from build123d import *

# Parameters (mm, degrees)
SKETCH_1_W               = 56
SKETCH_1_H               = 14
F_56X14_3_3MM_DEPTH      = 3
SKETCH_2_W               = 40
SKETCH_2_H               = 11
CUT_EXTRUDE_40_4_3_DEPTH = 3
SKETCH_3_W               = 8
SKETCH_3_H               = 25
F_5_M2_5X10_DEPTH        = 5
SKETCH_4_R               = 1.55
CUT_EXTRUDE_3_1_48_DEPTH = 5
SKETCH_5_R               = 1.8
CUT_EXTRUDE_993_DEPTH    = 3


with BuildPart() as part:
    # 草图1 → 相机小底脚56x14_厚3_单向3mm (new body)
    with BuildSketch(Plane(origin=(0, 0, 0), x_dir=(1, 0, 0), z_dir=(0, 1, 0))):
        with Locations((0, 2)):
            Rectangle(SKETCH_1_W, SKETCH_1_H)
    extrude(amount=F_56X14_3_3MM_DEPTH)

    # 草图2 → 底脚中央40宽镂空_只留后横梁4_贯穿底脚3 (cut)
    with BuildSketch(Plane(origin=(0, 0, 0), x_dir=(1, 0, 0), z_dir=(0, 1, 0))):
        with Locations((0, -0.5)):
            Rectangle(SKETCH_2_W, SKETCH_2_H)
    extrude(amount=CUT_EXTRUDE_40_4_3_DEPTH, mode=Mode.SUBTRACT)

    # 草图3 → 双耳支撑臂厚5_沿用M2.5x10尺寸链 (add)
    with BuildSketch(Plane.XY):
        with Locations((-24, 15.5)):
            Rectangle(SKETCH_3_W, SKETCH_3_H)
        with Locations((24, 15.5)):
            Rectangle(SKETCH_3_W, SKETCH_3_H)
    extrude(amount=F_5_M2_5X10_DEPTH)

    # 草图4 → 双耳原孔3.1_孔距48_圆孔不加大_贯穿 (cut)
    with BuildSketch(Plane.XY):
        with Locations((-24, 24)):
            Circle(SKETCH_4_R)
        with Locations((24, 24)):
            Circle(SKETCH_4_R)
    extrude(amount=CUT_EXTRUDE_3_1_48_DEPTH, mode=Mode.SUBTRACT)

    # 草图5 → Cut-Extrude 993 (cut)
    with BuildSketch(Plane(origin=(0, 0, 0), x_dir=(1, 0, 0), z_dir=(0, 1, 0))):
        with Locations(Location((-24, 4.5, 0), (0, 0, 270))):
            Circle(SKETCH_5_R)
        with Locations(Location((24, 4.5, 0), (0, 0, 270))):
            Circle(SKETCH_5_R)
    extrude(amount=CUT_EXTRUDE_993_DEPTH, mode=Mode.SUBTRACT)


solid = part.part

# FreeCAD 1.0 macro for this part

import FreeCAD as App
import Part
import Sketcher
from FreeCAD import Vector

doc = App.newDocument("Part")
body = doc.addObject("PartDesign::Body", "Body")

# Sketch on XZ plane
sketch1 = body.newObject("Sketcher::SketchObject", "Sketch")
sketch1.AttachmentSupport = (doc.getObject("XZ_Plane"), [""])
sketch1.MapMode = "FlatFace"
sketch1.addGeometry([
    Part.LineSegment(Vector(-28, -9, 0), Vector(-28, 5, 0)),
    Part.LineSegment(Vector(-28, 5, 0), Vector(28, 5, 0)),
    Part.LineSegment(Vector(28, 5, 0), Vector(28, -9, 0)),
    Part.LineSegment(Vector(28, -9, 0), Vector(-28, -9, 0)),
], False)
sketch1.addConstraint([
    Sketcher.Constraint("Coincident", 0, 2, 1, 1),
    Sketcher.Constraint("Coincident", 1, 2, 2, 1),
    Sketcher.Constraint("Coincident", 2, 2, 3, 1),
    Sketcher.Constraint("Coincident", 3, 2, 0, 1),
    Sketcher.Constraint("Vertical", 0),
    Sketcher.Constraint("Horizontal", 1),
    Sketcher.Constraint("Vertical", 2),
    Sketcher.Constraint("Horizontal", 3),
    Sketcher.Constraint("DistanceX", 1, 1, 1, 2, 56.0),
    Sketcher.Constraint("DistanceY", 0, 1, 0, 2, 14.0),
    Sketcher.Constraint("DistanceX", 0, 2, -1, 1, 28.0),
    Sketcher.Constraint("DistanceY", -1, 1, 0, 2, 5.0),
])
pad1 = body.newObject("PartDesign::Pad", "Pad")
pad1.Profile = sketch1
pad1.Length = 3
pad1.Reversed = True

# Sketch on XZ plane
sketch2 = body.newObject("Sketcher::SketchObject", "Sketch001")
sketch2.AttachmentSupport = (doc.getObject("XZ_Plane"), [""])
sketch2.MapMode = "FlatFace"
sketch2.addGeometry([
    Part.LineSegment(Vector(-20, -5, 0), Vector(-20, 6, 0)),
    Part.LineSegment(Vector(-20, 6, 0), Vector(20, 6, 0)),
    Part.LineSegment(Vector(20, 6, 0), Vector(20, -5, 0)),
    Part.LineSegment(Vector(20, -5, 0), Vector(-20, -5, 0)),
], False)
sketch2.addConstraint([
    Sketcher.Constraint("Coincident", 0, 2, 1, 1),
    Sketcher.Constraint("Coincident", 1, 2, 2, 1),
    Sketcher.Constraint("Coincident", 2, 2, 3, 1),
    Sketcher.Constraint("Coincident", 3, 2, 0, 1),
    Sketcher.Constraint("Vertical", 0),
    Sketcher.Constraint("Horizontal", 1),
    Sketcher.Constraint("Vertical", 2),
    Sketcher.Constraint("Horizontal", 3),
    Sketcher.Constraint("DistanceX", 1, 1, 1, 2, 40.0),
    Sketcher.Constraint("DistanceY", 0, 1, 0, 2, 11.0),
    Sketcher.Constraint("DistanceX", 0, 2, -1, 1, 20.0),
    Sketcher.Constraint("DistanceY", -1, 1, 0, 2, 6.0),
])
pocket1 = body.newObject("PartDesign::Pocket", "Pocket")
pocket1.Profile = sketch2
pocket1.Length = 3

# Sketch on XY plane
sketch3 = body.newObject("Sketcher::SketchObject", "Sketch002")
sketch3.AttachmentSupport = (doc.getObject("XY_Plane"), [""])
sketch3.MapMode = "FlatFace"
sketch3.addGeometry([
    Part.LineSegment(Vector(-28, 28, 0), Vector(-28, 3, 0)),  # 0
    Part.LineSegment(Vector(-28, 3, 0), Vector(-20, 3, 0)),  # 1
    Part.LineSegment(Vector(-20, 3, 0), Vector(-20, 28, 0)),  # 2
    Part.LineSegment(Vector(-20, 28, 0), Vector(-28, 28, 0)),  # 3
    Part.LineSegment(Vector(20, 28, 0), Vector(20, 3, 0)),  # 4
    Part.LineSegment(Vector(20, 3, 0), Vector(28, 3, 0)),  # 5
    Part.LineSegment(Vector(28, 3, 0), Vector(28, 28, 0)),  # 6
    Part.LineSegment(Vector(28, 28, 0), Vector(20, 28, 0)),  # 7
], False)
sketch3.addConstraint([
    Sketcher.Constraint("Coincident", 0, 2, 1, 1),
    Sketcher.Constraint("Coincident", 1, 2, 2, 1),
    Sketcher.Constraint("Coincident", 2, 2, 3, 1),
    Sketcher.Constraint("Coincident", 3, 2, 0, 1),
    Sketcher.Constraint("Coincident", 4, 2, 5, 1),
    Sketcher.Constraint("Coincident", 5, 2, 6, 1),
    Sketcher.Constraint("Coincident", 6, 2, 7, 1),
    Sketcher.Constraint("Coincident", 7, 2, 4, 1),
    Sketcher.Constraint("Vertical", 0),
    Sketcher.Constraint("Horizontal", 1),
    Sketcher.Constraint("Vertical", 2),
    Sketcher.Constraint("Horizontal", 3),
    Sketcher.Constraint("Vertical", 4),
    Sketcher.Constraint("Horizontal", 5),
    Sketcher.Constraint("Vertical", 6),
    Sketcher.Constraint("Horizontal", 7),
    Sketcher.Constraint("Symmetric", 1, 2, 4, 2, -2),
    Sketcher.Constraint("Symmetric", 3, 2, 6, 2, -2),
    Sketcher.Constraint("DistanceX", 1, 1, 1, 2, 8.0),
    Sketcher.Constraint("DistanceY", 0, 2, 0, 1, 25.0),
    Sketcher.Constraint("DistanceX", 0, 2, -1, 1, 28.0),
    Sketcher.Constraint("DistanceY", -1, 1, 0, 2, 3.0),
])
pad2 = body.newObject("PartDesign::Pad", "Pad001")
pad2.Profile = sketch3
pad2.Length = 5

# Sketch on XY plane
sketch4 = body.newObject("Sketcher::SketchObject", "Sketch003")
sketch4.AttachmentSupport = (doc.getObject("XY_Plane"), [""])
sketch4.MapMode = "FlatFace"
sketch4.addGeometry([
    Part.Circle(Vector(-24, 24, 0), Vector(0, 0, 1), 1.6),
    Part.Circle(Vector(24, 24, 0), Vector(0, 0, 1), 1.6),
], False)
sketch4.addConstraint([
    Sketcher.Constraint("Equal", 0, 1),
    Sketcher.Constraint("Symmetric", 0, 3, 1, 3, -2),
    Sketcher.Constraint("Diameter", 0, 3.1),
    Sketcher.Constraint("DistanceX", 0, 3, -1, 1, 24.0),
    Sketcher.Constraint("DistanceY", -1, 1, 0, 3, 24.0),
])
pocket2 = body.newObject("PartDesign::Pocket", "Pocket001")
pocket2.Profile = sketch4
pocket2.Length = 5
pocket2.Reversed = True

# Sketch on XZ plane
sketch5 = body.newObject("Sketcher::SketchObject", "Sketch004")
sketch5.AttachmentSupport = (doc.getObject("XZ_Plane"), [""])
sketch5.MapMode = "FlatFace"
sketch5.addGeometry([
    Part.Circle(Vector(-24, -4.5, 0), Vector(0, 0, 1), 1.8),
    Part.Circle(Vector(24, -4.5, 0), Vector(0, 0, 1), 1.8),
], False)
sketch5.addConstraint([
    Sketcher.Constraint("Equal", 0, 1),
    Sketcher.Constraint("Symmetric", 0, 3, 1, 3, -2),
    Sketcher.Constraint("Diameter", 0, 3.6),
    Sketcher.Constraint("DistanceX", 0, 3, -1, 1, 24.0),
    Sketcher.Constraint("DistanceY", 0, 3, -1, 1, 4.5),
])
pocket3 = body.newObject("PartDesign::Pocket", "Pocket002")
pocket3.Profile = sketch5
pocket3.Length = 3

doc.recompute()
